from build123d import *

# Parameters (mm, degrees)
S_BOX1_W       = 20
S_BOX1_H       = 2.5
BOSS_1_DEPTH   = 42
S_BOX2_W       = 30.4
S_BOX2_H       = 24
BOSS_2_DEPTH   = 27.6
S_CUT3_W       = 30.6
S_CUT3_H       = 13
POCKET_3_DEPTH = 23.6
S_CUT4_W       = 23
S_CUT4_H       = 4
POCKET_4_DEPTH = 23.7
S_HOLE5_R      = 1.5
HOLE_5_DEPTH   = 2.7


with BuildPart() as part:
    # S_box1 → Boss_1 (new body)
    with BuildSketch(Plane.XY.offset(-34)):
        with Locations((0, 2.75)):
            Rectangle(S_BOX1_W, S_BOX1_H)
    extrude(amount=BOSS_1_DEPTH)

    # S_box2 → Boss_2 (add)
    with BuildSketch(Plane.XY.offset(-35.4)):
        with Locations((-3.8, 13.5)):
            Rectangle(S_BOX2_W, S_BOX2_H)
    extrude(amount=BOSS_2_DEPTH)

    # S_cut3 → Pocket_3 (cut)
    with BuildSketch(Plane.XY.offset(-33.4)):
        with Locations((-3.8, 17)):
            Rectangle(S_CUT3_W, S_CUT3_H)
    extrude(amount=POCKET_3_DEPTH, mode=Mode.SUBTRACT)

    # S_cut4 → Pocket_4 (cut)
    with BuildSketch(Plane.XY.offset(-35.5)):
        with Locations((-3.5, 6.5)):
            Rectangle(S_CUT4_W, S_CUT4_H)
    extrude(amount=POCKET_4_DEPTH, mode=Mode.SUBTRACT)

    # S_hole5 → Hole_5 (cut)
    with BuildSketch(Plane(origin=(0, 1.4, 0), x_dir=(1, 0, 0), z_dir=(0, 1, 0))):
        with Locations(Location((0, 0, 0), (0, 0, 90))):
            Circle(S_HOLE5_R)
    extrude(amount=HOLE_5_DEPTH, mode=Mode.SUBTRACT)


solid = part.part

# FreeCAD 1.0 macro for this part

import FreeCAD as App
import Part
import Sketcher
Q = App.Units.Quantity

doc = App.newDocument("Part")
body = doc.addObject("PartDesign::Body", "Body")

# Sketch on XY plane
sketch1 = body.newObject("Sketcher::SketchObject", "Sketch")
sketch1.AttachmentSupport = (doc.getObject("XY_Plane"), [""])
sketch1.MapMode = "FlatFace"
sketch1.AttachmentOffset = App.Placement(App.Vector(0, 0, -34), App.Rotation())
sketch1.addGeometry([
    Part.LineSegment(App.Vector(-10, 4, 0), App.Vector(-10, 1.5, 0)),
    Part.LineSegment(App.Vector(-10, 1.5, 0), App.Vector(10, 1.5, 0)),
    Part.LineSegment(App.Vector(10, 1.5, 0), App.Vector(10, 4, 0)),
    Part.LineSegment(App.Vector(10, 4, 0), App.Vector(-10, 4, 0)),
], False)
sketch1.addConstraint([
    Sketcher.Constraint("Coincident", 0, 2, 1, 1),
    Sketcher.Constraint("Coincident", 1, 2, 2, 1),
    Sketcher.Constraint("Coincident", 2, 2, 3, 1),
    Sketcher.Constraint("Coincident", 3, 2, 0, 1),
    Sketcher.Constraint("Vertical", 0),
    Sketcher.Constraint("Horizontal", 1),
    Sketcher.Constraint("Vertical", 2),
    Sketcher.Constraint("Horizontal", 3),
    Sketcher.Constraint("DistanceX", 1, 1, 1, 2, Q("20 mm")),
    Sketcher.Constraint("DistanceY", 0, 2, 0, 1, Q("2.5 mm")),
    Sketcher.Constraint("DistanceX", 0, 2, -1, 1, Q("10 mm")),
    Sketcher.Constraint("DistanceY", -1, 1, 2, 2, Q("4 mm")),
])
pad1 = body.newObject("PartDesign::Pad", "Pad")
pad1.Profile = sketch1
pad1.Length = 42

# Sketch on XY plane
sketch2 = body.newObject("Sketcher::SketchObject", "Sketch001")
sketch2.AttachmentSupport = (doc.getObject("XY_Plane"), [""])
sketch2.MapMode = "FlatFace"
sketch2.AttachmentOffset = App.Placement(App.Vector(0, 0, -35.4), App.Rotation())
sketch2.addGeometry([
    Part.LineSegment(App.Vector(-19, 25.5, 0), App.Vector(-19, 1.5, 0)),
    Part.LineSegment(App.Vector(-19, 1.5, 0), App.Vector(11.4, 1.5, 0)),
    Part.LineSegment(App.Vector(11.4, 1.5, 0), App.Vector(11.4, 25.5, 0)),
    Part.LineSegment(App.Vector(11.4, 25.5, 0), App.Vector(-19, 25.5, 0)),
], False)
sketch2.addConstraint([
    Sketcher.Constraint("Coincident", 0, 2, 1, 1),
    Sketcher.Constraint("Coincident", 1, 2, 2, 1),
    Sketcher.Constraint("Coincident", 2, 2, 3, 1),
    Sketcher.Constraint("Coincident", 3, 2, 0, 1),
    Sketcher.Constraint("Vertical", 0),
    Sketcher.Constraint("Horizontal", 1),
    Sketcher.Constraint("Vertical", 2),
    Sketcher.Constraint("Horizontal", 3),
    Sketcher.Constraint("DistanceY", 0, 2, 0, 1, Q("24 mm")),
    Sketcher.Constraint("DistanceX", 1, 1, 1, 2, Q("30.4 mm")),
    Sketcher.Constraint("DistanceX", 0, 2, -1, 1, Q("19 mm")),
    Sketcher.Constraint("DistanceY", -1, 1, 0, 2, Q("1.5 mm")),
])
pad2 = body.newObject("PartDesign::Pad", "Pad001")
pad2.Profile = sketch2
pad2.Length = 27.6

# Sketch on XY plane
sketch3 = body.newObject("Sketcher::SketchObject", "Sketch002")
sketch3.AttachmentSupport = (doc.getObject("XY_Plane"), [""])
sketch3.MapMode = "FlatFace"
sketch3.AttachmentOffset = App.Placement(App.Vector(0, 0, -33.4), App.Rotation())
sketch3.addGeometry([
    Part.LineSegment(App.Vector(-19.1, 23.5, 0), App.Vector(-19.1, 10.5, 0)),
    Part.LineSegment(App.Vector(-19.1, 10.5, 0), App.Vector(11.5, 10.5, 0)),
    Part.LineSegment(App.Vector(11.5, 10.5, 0), App.Vector(11.5, 23.5, 0)),
    Part.LineSegment(App.Vector(11.5, 23.5, 0), App.Vector(-19.1, 23.5, 0)),
], False)
sketch3.addConstraint([
    Sketcher.Constraint("Coincident", 0, 2, 1, 1),
    Sketcher.Constraint("Coincident", 1, 2, 2, 1),
    Sketcher.Constraint("Coincident", 2, 2, 3, 1),
    Sketcher.Constraint("Coincident", 3, 2, 0, 1),
    Sketcher.Constraint("Vertical", 0),
    Sketcher.Constraint("Horizontal", 1),
    Sketcher.Constraint("Vertical", 2),
    Sketcher.Constraint("Horizontal", 3),
    Sketcher.Constraint("DistanceY", 0, 2, 0, 1, Q("13 mm")),
    Sketcher.Constraint("DistanceX", 1, 1, 1, 2, Q("30.6 mm")),
    Sketcher.Constraint("DistanceX", 0, 2, -1, 1, Q("19.1 mm")),
    Sketcher.Constraint("DistanceY", -1, 1, 0, 2, Q("10.5 mm")),
])
pocket1 = body.newObject("PartDesign::Pocket", "Pocket")
pocket1.Profile = sketch3
pocket1.Length = 23.6
pocket1.Reversed = True

# Sketch on XY plane
sketch4 = body.newObject("Sketcher::SketchObject", "Sketch003")
sketch4.AttachmentSupport = (doc.getObject("XY_Plane"), [""])
sketch4.MapMode = "FlatFace"
sketch4.AttachmentOffset = App.Placement(App.Vector(0, 0, -35.5), App.Rotation())
sketch4.addGeometry([
    Part.LineSegment(App.Vector(-15, 8.5, 0), App.Vector(-15, 4.5, 0)),
    Part.LineSegment(App.Vector(-15, 4.5, 0), App.Vector(8, 4.5, 0)),
    Part.LineSegment(App.Vector(8, 4.5, 0), App.Vector(8, 8.5, 0)),
    Part.LineSegment(App.Vector(8, 8.5, 0), App.Vector(-15, 8.5, 0)),
], False)
sketch4.addConstraint([
    Sketcher.Constraint("Coincident", 0, 2, 1, 1),
    Sketcher.Constraint("Coincident", 1, 2, 2, 1),
    Sketcher.Constraint("Coincident", 2, 2, 3, 1),
    Sketcher.Constraint("Coincident", 3, 2, 0, 1),
    Sketcher.Constraint("Vertical", 0),
    Sketcher.Constraint("Horizontal", 1),
    Sketcher.Constraint("Vertical", 2),
    Sketcher.Constraint("Horizontal", 3),
    Sketcher.Constraint("DistanceX", 1, 1, 1, 2, Q("23 mm")),
    Sketcher.Constraint("DistanceY", 0, 2, 0, 1, Q("4 mm")),
    Sketcher.Constraint("DistanceX", 0, 2, -1, 1, Q("15 mm")),
    Sketcher.Constraint("DistanceY", -1, 1, 0, 2, Q("4.5 mm")),
])
pocket2 = body.newObject("PartDesign::Pocket", "Pocket001")
pocket2.Profile = sketch4
pocket2.Length = 23.7
pocket2.Reversed = True

# Sketch on XZ plane
sketch5 = body.newObject("Sketcher::SketchObject", "Sketch004")
sketch5.AttachmentSupport = (doc.getObject("XZ_Plane"), [""])
sketch5.MapMode = "FlatFace"
sketch5.AttachmentOffset = App.Placement(App.Vector(0, 0, -1.4), App.Rotation())
sketch5.addGeometry(Part.Circle(App.Vector(0, 0, 0), App.Vector(0, 0, 1), 1.5), False)
sketch5.addConstraint([
    Sketcher.Constraint("Coincident", 0, 3, -1, 1),
    Sketcher.Constraint("Diameter", 0, Q("3 mm")),
])
pocket3 = body.newObject("PartDesign::Pocket", "Pocket002")
pocket3.Profile = sketch5
pocket3.Length = 2.7

doc.recompute()
